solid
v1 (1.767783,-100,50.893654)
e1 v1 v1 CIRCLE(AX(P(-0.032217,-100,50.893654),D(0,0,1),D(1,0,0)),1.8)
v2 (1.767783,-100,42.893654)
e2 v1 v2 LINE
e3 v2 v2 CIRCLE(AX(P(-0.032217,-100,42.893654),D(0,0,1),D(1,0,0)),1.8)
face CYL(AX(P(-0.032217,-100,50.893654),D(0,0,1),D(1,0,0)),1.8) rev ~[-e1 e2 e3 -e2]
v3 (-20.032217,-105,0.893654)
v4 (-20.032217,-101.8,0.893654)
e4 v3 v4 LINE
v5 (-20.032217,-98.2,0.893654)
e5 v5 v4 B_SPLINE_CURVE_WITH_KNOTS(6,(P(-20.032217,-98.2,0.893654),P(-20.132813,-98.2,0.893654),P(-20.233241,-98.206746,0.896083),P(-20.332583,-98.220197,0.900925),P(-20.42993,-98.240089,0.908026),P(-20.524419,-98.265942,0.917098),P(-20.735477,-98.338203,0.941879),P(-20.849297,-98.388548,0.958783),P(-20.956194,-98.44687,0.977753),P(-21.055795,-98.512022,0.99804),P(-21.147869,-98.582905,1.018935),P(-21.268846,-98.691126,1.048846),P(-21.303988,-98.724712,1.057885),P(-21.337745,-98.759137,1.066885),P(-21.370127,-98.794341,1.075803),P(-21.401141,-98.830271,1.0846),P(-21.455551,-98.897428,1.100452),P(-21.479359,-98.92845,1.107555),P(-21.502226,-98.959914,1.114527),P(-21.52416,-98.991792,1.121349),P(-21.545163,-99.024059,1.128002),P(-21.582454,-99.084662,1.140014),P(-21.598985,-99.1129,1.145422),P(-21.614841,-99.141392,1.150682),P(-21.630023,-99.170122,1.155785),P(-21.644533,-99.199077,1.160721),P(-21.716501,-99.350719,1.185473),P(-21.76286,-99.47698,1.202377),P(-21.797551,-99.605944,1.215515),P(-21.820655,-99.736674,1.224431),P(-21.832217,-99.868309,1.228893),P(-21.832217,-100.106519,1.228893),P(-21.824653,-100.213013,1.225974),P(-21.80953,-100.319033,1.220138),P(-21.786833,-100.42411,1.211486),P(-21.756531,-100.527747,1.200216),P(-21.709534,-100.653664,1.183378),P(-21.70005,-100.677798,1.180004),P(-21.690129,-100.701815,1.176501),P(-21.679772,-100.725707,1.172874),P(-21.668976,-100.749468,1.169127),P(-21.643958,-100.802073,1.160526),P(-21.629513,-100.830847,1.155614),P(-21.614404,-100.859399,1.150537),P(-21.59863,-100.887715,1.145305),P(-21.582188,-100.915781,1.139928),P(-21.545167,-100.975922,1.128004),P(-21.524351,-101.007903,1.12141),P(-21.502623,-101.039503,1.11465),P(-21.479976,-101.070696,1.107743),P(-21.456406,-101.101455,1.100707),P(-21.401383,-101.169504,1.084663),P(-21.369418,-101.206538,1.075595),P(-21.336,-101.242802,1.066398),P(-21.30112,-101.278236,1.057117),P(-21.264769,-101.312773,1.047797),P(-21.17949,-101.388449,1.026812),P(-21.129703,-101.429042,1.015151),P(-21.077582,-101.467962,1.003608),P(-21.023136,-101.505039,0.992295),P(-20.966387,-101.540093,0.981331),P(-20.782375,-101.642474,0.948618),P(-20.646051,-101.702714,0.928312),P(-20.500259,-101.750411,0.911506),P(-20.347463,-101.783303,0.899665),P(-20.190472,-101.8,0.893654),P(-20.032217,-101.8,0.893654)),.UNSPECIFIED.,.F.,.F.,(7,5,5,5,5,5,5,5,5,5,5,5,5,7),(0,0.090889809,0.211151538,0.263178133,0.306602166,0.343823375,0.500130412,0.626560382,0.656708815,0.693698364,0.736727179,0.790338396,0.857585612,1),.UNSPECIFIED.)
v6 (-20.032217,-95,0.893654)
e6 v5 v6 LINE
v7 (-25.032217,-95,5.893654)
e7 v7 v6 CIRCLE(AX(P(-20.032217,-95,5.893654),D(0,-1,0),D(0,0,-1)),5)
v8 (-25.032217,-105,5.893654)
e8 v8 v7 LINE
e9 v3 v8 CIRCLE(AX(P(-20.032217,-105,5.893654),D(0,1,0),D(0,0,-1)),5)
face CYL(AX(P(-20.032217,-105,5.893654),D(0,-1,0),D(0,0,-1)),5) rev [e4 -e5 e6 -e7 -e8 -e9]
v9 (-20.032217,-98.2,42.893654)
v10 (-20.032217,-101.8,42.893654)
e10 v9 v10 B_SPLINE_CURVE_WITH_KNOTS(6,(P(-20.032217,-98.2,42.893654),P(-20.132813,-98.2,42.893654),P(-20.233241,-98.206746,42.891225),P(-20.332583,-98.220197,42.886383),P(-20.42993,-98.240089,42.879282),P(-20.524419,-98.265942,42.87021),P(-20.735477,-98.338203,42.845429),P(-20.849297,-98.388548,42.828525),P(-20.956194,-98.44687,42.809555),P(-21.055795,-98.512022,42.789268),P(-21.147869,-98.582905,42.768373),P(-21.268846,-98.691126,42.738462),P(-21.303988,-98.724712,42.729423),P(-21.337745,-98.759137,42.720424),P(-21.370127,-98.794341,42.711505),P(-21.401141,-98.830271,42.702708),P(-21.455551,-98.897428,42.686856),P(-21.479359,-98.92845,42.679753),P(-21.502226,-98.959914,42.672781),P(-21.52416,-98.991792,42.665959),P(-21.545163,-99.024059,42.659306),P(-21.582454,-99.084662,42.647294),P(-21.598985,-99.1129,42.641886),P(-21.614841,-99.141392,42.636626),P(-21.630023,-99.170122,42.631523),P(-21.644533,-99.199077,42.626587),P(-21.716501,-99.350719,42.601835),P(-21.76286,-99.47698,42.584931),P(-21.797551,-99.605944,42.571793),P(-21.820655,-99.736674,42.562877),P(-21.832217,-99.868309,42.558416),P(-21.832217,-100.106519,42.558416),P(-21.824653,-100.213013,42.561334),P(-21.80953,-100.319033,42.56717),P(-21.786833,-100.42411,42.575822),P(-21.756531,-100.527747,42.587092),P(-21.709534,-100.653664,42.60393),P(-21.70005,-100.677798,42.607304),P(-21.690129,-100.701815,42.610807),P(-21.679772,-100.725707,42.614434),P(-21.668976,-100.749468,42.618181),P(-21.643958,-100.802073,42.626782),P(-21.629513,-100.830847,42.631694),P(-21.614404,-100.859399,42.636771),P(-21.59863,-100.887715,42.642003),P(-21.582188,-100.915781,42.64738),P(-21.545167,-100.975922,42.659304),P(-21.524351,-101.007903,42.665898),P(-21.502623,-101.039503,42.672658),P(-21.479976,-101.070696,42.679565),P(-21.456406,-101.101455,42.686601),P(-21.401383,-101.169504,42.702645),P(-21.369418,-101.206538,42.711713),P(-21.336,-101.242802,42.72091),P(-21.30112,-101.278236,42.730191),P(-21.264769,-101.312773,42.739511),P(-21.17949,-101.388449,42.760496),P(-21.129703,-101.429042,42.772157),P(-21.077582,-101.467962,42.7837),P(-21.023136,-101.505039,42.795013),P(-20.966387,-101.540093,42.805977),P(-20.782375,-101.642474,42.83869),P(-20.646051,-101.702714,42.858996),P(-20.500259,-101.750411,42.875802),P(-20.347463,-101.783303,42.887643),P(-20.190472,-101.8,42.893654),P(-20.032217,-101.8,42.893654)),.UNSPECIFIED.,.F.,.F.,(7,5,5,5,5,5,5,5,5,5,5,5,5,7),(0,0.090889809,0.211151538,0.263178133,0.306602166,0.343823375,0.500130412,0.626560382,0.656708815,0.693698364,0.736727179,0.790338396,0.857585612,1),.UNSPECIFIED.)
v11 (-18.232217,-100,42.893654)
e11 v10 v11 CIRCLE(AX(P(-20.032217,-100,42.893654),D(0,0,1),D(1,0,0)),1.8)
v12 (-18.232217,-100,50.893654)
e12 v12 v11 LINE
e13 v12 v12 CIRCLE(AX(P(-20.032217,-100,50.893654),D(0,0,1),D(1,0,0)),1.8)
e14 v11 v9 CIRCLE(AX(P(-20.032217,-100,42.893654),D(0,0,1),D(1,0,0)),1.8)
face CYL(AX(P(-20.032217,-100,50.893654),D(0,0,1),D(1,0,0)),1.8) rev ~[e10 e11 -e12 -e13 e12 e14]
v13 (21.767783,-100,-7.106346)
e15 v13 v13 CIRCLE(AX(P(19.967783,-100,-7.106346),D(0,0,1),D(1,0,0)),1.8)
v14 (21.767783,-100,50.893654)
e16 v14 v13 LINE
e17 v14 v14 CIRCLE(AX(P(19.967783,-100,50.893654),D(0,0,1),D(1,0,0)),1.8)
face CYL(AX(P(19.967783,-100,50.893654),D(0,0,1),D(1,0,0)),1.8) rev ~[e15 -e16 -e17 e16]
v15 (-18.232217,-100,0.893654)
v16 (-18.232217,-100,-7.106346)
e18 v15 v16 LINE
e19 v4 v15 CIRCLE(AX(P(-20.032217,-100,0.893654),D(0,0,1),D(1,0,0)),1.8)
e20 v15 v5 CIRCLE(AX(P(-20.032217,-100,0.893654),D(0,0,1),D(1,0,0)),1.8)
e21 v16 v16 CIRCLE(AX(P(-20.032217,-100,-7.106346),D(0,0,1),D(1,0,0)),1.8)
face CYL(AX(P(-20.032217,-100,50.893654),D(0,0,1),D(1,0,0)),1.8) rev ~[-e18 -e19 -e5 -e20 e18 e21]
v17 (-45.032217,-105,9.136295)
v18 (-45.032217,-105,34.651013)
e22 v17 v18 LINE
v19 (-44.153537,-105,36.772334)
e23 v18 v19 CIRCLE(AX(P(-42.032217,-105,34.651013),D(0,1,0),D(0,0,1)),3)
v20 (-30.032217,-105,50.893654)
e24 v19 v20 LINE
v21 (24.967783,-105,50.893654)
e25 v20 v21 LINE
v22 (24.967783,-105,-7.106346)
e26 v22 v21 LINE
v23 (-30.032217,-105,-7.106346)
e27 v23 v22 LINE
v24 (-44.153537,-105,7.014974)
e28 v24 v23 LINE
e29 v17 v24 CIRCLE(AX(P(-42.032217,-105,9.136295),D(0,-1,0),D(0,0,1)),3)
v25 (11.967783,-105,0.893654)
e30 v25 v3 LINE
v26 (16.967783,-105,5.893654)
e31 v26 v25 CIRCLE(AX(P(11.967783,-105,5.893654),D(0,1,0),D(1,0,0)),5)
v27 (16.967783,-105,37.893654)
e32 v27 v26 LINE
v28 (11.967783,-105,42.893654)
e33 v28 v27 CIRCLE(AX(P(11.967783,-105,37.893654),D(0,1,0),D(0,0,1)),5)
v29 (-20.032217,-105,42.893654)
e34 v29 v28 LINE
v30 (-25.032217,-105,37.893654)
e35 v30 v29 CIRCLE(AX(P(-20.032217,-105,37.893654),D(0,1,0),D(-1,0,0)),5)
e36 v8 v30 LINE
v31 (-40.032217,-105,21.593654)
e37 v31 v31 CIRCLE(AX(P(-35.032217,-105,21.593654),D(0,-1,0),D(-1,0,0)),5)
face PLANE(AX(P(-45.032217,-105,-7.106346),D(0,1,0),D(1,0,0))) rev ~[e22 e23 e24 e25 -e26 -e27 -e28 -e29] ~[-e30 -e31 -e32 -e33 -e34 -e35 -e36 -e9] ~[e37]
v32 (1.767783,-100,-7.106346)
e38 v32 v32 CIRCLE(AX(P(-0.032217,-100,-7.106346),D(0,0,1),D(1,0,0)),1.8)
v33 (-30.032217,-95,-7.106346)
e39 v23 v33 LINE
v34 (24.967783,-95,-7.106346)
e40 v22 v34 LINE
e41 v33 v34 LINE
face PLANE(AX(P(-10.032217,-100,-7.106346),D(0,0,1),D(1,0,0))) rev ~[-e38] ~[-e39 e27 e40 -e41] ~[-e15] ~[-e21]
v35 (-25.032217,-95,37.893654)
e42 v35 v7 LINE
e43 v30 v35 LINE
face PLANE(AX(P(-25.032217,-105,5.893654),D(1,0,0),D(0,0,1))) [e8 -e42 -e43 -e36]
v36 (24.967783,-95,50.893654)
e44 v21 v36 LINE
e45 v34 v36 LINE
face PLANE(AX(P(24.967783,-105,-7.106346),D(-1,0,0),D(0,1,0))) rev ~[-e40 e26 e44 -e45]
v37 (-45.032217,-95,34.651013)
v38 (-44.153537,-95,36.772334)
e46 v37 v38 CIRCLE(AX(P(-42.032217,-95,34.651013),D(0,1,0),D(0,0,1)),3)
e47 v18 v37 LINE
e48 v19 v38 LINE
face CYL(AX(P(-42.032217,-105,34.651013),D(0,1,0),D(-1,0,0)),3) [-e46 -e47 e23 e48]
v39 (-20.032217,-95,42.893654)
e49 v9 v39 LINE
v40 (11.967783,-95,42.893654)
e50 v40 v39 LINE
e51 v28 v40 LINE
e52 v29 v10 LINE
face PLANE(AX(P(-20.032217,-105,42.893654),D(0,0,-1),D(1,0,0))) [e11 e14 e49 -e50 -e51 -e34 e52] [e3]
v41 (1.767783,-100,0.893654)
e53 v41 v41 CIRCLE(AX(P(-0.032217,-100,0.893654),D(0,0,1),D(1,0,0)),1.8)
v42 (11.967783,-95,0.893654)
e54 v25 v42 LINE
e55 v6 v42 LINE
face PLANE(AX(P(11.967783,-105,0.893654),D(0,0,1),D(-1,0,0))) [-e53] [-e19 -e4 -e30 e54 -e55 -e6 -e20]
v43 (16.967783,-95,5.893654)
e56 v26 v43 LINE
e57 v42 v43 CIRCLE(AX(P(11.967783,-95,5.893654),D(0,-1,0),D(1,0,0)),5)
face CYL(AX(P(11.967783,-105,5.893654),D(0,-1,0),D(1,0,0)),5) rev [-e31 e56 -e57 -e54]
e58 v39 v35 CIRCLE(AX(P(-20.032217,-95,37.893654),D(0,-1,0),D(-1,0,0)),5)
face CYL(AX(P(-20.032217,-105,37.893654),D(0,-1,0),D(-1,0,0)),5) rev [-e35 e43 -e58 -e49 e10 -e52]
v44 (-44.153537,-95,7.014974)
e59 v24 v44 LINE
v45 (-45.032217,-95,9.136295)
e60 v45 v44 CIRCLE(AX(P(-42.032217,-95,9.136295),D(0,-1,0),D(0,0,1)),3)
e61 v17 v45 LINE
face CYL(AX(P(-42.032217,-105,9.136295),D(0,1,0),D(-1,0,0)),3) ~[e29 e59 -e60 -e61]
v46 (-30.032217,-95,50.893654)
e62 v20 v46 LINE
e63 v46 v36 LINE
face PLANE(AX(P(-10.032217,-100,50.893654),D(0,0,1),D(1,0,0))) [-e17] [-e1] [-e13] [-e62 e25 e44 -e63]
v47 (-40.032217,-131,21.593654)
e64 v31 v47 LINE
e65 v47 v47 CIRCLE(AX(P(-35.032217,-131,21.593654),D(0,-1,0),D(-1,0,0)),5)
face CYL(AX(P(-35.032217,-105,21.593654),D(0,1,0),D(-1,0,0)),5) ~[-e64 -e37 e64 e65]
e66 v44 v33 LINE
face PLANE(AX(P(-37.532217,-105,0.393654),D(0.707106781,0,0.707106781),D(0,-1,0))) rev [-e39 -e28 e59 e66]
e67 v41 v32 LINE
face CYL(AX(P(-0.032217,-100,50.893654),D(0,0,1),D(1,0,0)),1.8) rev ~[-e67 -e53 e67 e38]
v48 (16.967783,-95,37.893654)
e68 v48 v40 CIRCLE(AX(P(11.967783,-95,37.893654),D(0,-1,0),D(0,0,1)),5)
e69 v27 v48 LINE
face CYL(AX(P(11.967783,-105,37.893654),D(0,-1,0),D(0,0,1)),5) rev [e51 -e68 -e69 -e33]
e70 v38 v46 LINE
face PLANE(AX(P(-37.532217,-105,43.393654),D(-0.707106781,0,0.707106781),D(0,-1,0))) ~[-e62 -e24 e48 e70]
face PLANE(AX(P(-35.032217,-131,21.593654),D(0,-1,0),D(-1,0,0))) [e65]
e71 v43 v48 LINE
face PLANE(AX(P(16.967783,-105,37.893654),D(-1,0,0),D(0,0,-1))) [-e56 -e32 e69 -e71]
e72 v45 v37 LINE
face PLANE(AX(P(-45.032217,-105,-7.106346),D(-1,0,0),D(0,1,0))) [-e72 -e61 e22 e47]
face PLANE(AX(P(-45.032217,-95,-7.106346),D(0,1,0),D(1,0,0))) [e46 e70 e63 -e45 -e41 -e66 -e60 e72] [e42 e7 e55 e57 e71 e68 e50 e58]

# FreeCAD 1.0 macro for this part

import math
import FreeCAD as App
import Part
import Sketcher

V = App.Vector
Q = App.Units.Quantity


def edges_at(feature, points):
    """Names of the edges that pass closest to the given points."""
    edges = feature.Shape.Edges
    near = lambda p: min(range(len(edges)), key=lambda i: edges[i].distToShape(Part.Vertex(*p))[0])
    return sorted({f"Edge{near(p) + 1}" for p in points})

doc = App.newDocument("Part")
body = doc.addObject("PartDesign::Body", "Body")

# Sketch on XY plane
sketch1 = body.newObject("Sketcher::SketchObject", "Sketch")
sketch1.AttachmentSupport = (doc.getObject("XY_Plane"), [""])
sketch1.MapMode = "FlatFace"
sketch1.AttachmentOffset = App.Placement(V(0, 0, -7.106346), App.Rotation())
sketch1.addGeometry([
    Part.LineSegment(V(-45.032217, -95, 0), V(-45.032217, -105, 0)),
    Part.LineSegment(V(-45.032217, -105, 0), V(24.967783, -105, 0)),
    Part.LineSegment(V(24.967783, -105, 0), V(24.967783, -95, 0)),
    Part.LineSegment(V(24.967783, -95, 0), V(-45.032217, -95, 0)),
], False)
sketch1.addConstraint([
    Sketcher.Constraint("Coincident", 0, 2, 1, 1),
    Sketcher.Constraint("Coincident", 1, 2, 2, 1),
    Sketcher.Constraint("Coincident", 2, 2, 3, 1),
    Sketcher.Constraint("Coincident", 3, 2, 0, 1),
    Sketcher.Constraint("Vertical", 0),
    Sketcher.Constraint("Horizontal", 1),
    Sketcher.Constraint("Vertical", 2),
    Sketcher.Constraint("Horizontal", 3),
    Sketcher.Constraint("DistanceX", 1, 1, 1, 2, Q("70 mm")),
    Sketcher.Constraint("DistanceY", 0, 2, 0, 1, Q("10 mm")),
    Sketcher.Constraint("DistanceY", 0, 2, -1, 1, Q("105 mm")),
    Sketcher.Constraint("DistanceX", 0, 2, -1, 1, Q("45.032217 mm")),
])
pad1 = body.newObject("PartDesign::Pad", "Pad")
pad1.Profile = sketch1
pad1.Length = 58

# Sketch on XZ plane
sketch2 = body.newObject("Sketcher::SketchObject", "Sketch001")
sketch2.AttachmentSupport = (doc.getObject("XZ_Plane"), [""])
sketch2.MapMode = "FlatFace"
sketch2.AttachmentOffset = App.Placement(V(0, 0, 105), App.Rotation())
sketch2.addGeometry(Part.Circle(V(-35.032217, 21.593654, 0), V(0, 0, 1), 5), False)
sketch2.addConstraint([
    Sketcher.Constraint("Diameter", 0, Q("10 mm")),
    Sketcher.Constraint("DistanceX", 0, 3, -1, 1, Q("35.032217 mm")),
    Sketcher.Constraint("DistanceY", -1, 1, 0, 3, Q("21.593654 mm")),
])
pad2 = body.newObject("PartDesign::Pad", "Pad001")
pad2.Profile = sketch2
pad2.Length = 26

# Sketch on XZ plane
sketch3 = body.newObject("Sketcher::SketchObject", "Sketch002")
sketch3.AttachmentSupport = (doc.getObject("XZ_Plane"), [""])
sketch3.MapMode = "FlatFace"
sketch3.AttachmentOffset = App.Placement(V(0, 0, 105), App.Rotation())
sketch3.addGeometry([
    Part.LineSegment(V(11.967783, 42.893654, 0), V(-20.032217, 42.893654, 0)),  # 0
    Part.ArcOfCircle(Part.Circle(V(-20.032217, 37.893654, 0), V(0, 0, 1), 5), math.radians(90), math.radians(180)),  # 1
    Part.LineSegment(V(-25.032217, 37.893654, 0), V(-25.032217, 5.893654, 0)),  # 2
    Part.ArcOfCircle(Part.Circle(V(-20.032217, 5.893654, 0), V(0, 0, 1), 5), math.radians(180), math.radians(270)),  # 3
    Part.LineSegment(V(-20.032217, 0.893654, 0), V(11.967783, 0.893654, 0)),  # 4
    Part.ArcOfCircle(Part.Circle(V(11.967783, 5.893654, 0), V(0, 0, 1), 5), math.radians(-90), math.radians(0)),  # 5
    Part.LineSegment(V(16.967783, 5.893654, 0), V(16.967783, 37.893654, 0)),  # 6
    Part.ArcOfCircle(Part.Circle(V(11.967783, 37.893654, 0), V(0, 0, 1), 5), math.radians(0), math.radians(90)),  # 7
], False)
sketch3.addConstraint([
    Sketcher.Constraint("Tangent", 0, 2, 1, 1),
    Sketcher.Constraint("Tangent", 1, 2, 2, 1),
    Sketcher.Constraint("Tangent", 2, 2, 3, 1),
    Sketcher.Constraint("Tangent", 3, 2, 4, 1),
    Sketcher.Constraint("Tangent", 4, 2, 5, 1),
    Sketcher.Constraint("Tangent", 5, 2, 6, 1),
    Sketcher.Constraint("Tangent", 6, 2, 7, 1),
    Sketcher.Constraint("Tangent", 7, 2, 0, 1),
    Sketcher.Constraint("Horizontal", 0),
    Sketcher.Constraint("Vertical", 2),
    Sketcher.Constraint("Horizontal", 4),
    Sketcher.Constraint("Vertical", 6),
    Sketcher.Constraint("Equal", 1, 3),
    Sketcher.Constraint("Equal", 3, 5),
    Sketcher.Constraint("Equal", 5, 7),
    Sketcher.Constraint("Equal", 4, 2),
    Sketcher.Constraint("Radius", 1, Q("5 mm")),
    Sketcher.Constraint("DistanceX", 0, 2, 0, 1, Q("32 mm")),
    Sketcher.Constraint("DistanceX", 1, 3, -1, 1, Q("20.032217 mm")),
    Sketcher.Constraint("DistanceY", -1, 1, 1, 3, Q("37.893654 mm")),
])
pocket1 = body.newObject("PartDesign::Pocket", "Pocket")
pocket1.Profile = sketch3
pocket1.Length = 30
doc.recompute()

chamfer = body.newObject("PartDesign::Chamfer", "Chamfer")
chamfer.Base = (pocket1, edges_at(pocket1, [(-45.032, -100, 50.894), (-45.032, -100, -7.106)]))
chamfer.Size = 15
doc.recompute()

fillet = body.newObject("PartDesign::Fillet", "Fillet")
fillet.Base = (chamfer, edges_at(chamfer, [(-45.032, -100, 35.894), (-45.032, -100, 7.894)]))
fillet.Radius = 3

# Sketch on XY plane
sketch4 = body.newObject("Sketcher::SketchObject", "Sketch003")
sketch4.AttachmentSupport = (doc.getObject("XY_Plane"), [""])
sketch4.MapMode = "FlatFace"
sketch4.AttachmentOffset = App.Placement(V(0, 0, 50.893654), App.Rotation())
sketch4.addGeometry([
    Part.Circle(V(-20.032217, -100, 0), V(0, 0, 1), 1.8),
    Part.Circle(V(-0.032217, -100, 0), V(0, 0, 1), 1.8),
    Part.Circle(V(19.967783, -100, 0), V(0, 0, 1), 1.8),
], False)
sketch4.addConstraint([
    Sketcher.Constraint("Equal", 0, 1),
    Sketcher.Constraint("Equal", 1, 2),
    Sketcher.Constraint("Horizontal", 0, 3, 1, 3),
    Sketcher.Constraint("Horizontal", 1, 3, 2, 3),
    Sketcher.Constraint("Diameter", 0, Q("3.6 mm")),
    Sketcher.Constraint("DistanceY", 0, 3, -1, 1, Q("100 mm")),
    Sketcher.Constraint("DistanceX", 0, 3, 1, 3, Q("20 mm")),
    Sketcher.Constraint("DistanceX", 1, 3, 2, 3, Q("20 mm")),
    Sketcher.Constraint("DistanceX", 0, 3, -1, 1, Q("20.032217 mm")),
])
pocket2 = body.newObject("PartDesign::Pocket", "Pocket001")
pocket2.Profile = sketch4
pocket2.Length = 60

doc.recompute()
